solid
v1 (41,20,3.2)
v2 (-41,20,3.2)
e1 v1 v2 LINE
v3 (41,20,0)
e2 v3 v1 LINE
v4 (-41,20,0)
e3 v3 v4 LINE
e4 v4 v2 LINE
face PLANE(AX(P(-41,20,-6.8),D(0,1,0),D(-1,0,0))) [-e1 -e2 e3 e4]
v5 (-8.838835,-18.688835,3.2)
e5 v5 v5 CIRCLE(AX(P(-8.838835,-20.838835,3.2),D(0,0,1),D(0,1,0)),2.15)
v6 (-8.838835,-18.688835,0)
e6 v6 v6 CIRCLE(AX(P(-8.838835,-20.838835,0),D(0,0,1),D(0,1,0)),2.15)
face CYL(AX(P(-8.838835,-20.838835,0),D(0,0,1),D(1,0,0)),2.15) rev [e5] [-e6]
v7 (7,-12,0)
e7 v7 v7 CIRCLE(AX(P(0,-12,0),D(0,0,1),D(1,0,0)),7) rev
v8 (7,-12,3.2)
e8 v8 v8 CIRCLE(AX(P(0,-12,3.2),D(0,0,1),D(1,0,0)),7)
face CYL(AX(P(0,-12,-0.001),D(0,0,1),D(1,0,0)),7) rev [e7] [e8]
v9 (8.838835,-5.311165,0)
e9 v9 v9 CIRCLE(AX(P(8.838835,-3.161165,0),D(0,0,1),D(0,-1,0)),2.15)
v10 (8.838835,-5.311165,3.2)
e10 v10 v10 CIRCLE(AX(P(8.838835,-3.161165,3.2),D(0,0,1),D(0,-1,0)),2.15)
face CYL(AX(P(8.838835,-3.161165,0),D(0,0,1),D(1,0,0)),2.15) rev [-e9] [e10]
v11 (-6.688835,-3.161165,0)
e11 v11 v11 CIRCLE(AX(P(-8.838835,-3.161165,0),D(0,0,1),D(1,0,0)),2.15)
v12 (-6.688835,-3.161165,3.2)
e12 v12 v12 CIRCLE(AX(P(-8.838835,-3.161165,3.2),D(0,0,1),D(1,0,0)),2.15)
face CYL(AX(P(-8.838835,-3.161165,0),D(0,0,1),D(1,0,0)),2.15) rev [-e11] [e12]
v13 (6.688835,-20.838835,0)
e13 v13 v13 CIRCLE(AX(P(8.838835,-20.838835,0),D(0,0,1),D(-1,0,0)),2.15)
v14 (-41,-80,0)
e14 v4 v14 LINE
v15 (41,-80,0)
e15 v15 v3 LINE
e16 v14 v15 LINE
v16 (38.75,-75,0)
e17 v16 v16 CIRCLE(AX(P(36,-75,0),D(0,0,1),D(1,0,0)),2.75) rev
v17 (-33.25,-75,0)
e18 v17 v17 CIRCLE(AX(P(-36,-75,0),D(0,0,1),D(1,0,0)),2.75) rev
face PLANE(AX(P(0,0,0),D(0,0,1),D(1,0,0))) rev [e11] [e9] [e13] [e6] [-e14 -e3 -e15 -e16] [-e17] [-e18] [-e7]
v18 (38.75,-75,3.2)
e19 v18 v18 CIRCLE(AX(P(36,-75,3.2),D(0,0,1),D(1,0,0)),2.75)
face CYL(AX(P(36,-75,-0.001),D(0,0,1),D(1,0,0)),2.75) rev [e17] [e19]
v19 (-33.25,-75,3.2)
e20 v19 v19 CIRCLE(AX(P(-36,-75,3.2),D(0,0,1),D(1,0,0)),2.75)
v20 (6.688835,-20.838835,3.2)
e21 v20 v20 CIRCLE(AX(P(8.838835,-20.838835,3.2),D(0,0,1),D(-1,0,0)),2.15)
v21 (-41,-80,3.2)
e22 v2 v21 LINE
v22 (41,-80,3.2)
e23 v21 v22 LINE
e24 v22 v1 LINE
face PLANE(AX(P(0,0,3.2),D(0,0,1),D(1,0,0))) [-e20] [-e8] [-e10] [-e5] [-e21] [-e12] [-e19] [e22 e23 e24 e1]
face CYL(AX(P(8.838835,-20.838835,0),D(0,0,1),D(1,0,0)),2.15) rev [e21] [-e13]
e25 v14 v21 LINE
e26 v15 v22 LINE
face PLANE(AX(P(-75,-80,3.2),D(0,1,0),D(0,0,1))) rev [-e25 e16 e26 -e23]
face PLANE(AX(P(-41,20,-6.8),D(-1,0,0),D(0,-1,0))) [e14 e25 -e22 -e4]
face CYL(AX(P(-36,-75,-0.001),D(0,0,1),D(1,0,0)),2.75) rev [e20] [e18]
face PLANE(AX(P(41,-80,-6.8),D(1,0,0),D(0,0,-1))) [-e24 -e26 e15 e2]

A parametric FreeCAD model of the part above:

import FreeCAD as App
import Part
import Sketcher
from FreeCAD import Vector

doc = App.newDocument("Part")
body = doc.addObject("PartDesign::Body", "Body")

# Sketch on XY plane
sketch1 = body.newObject("Sketcher::SketchObject", "Sketch")
sketch1.AttachmentSupport = (doc.getObject("XY_Plane"), [""])
sketch1.MapMode = "FlatFace"
sketch1.addGeometry([
    Part.LineSegment(Vector(-75, 80, 0), Vector(-75, -80, 0)),
    Part.LineSegment(Vector(-75, -80, 0), Vector(75, -80, 0)),
    Part.LineSegment(Vector(75, -80, 0), Vector(75, 80, 0)),
    Part.LineSegment(Vector(75, 80, 0), Vector(-75, 80, 0)),
], False)
sketch1.addConstraint([
    Sketcher.Constraint("Coincident", 0, 2, 1, 1),
    Sketcher.Constraint("Coincident", 1, 2, 2, 1),
    Sketcher.Constraint("Coincident", 2, 2, 3, 1),
    Sketcher.Constraint("Coincident", 3, 2, 0, 1),
    Sketcher.Constraint("Vertical", 0),
    Sketcher.Constraint("Horizontal", 1),
    Sketcher.Constraint("Vertical", 2),
    Sketcher.Constraint("Horizontal", 3),
    Sketcher.Constraint("Symmetric", 0, 2, 2, 2, -1, 1),
    Sketcher.Constraint("DistanceX", 1, 1, 1, 2, 150.0),
    Sketcher.Constraint("DistanceY", 0, 2, 0, 1, 160.0),
])
pad1 = body.newObject("PartDesign::Pad", "Pad")
pad1.Profile = sketch1
pad1.Length = 3.2

# Sketch on XY plane
sketch2 = body.newObject("Sketcher::SketchObject", "Sketch001")
sketch2.AttachmentSupport = (doc.getObject("XY_Plane"), [""])
sketch2.MapMode = "FlatFace"
sketch2.AttachmentOffset = App.Placement(Vector(0, 0, 3.2), App.Rotation())
sketch2.addGeometry(Part.Circle(Vector(0, -12, 0), Vector(0, 0, 1), 7), False)
sketch2.addConstraint([
    Sketcher.Constraint("PointOnObject", 0, 3, -2),
    Sketcher.Constraint("Diameter", 0, 14.0),
    Sketcher.Constraint("DistanceY", 0, 3, -1, 1, 12.0),
])
pocket1 = body.newObject("PartDesign::Pocket", "Pocket")
pocket1.Profile = sketch2
pocket1.Type = "UpToFirst"

# Sketch on XY plane
sketch3 = body.newObject("Sketcher::SketchObject", "Sketch002")
sketch3.AttachmentSupport = (doc.getObject("XY_Plane"), [""])
sketch3.MapMode = "FlatFace"
sketch3.AttachmentOffset = App.Placement(Vector(0, 0, 3.2), App.Rotation())
sketch3.addGeometry(Part.Circle(Vector(-36, -75, 0), Vector(0, 0, 1), 2.8), False)
sketch3.addConstraint([
    Sketcher.Constraint("Diameter", 0, 5.5),
    Sketcher.Constraint("DistanceX", 0, 3, -1, 1, 36.0),
    Sketcher.Constraint("DistanceY", 0, 3, -1, 1, 75.0),
])
pocket2 = body.newObject("PartDesign::Pocket", "Pocket001")
pocket2.Profile = sketch3
pocket2.Type = "UpToFirst"

# Sketch on XY plane
sketch4 = body.newObject("Sketcher::SketchObject", "Sketch003")
sketch4.AttachmentSupport = (doc.getObject("XY_Plane"), [""])
sketch4.MapMode = "FlatFace"
sketch4.AttachmentOffset = App.Placement(Vector(0, 0, 3.2), App.Rotation())
sketch4.addGeometry(Part.Circle(Vector(36, -75, 0), Vector(0, 0, 1), 2.8), False)
sketch4.addConstraint([
    Sketcher.Constraint("Diameter", 0, 5.5),
    Sketcher.Constraint("DistanceX", -1, 1, 0, 3, 36.0),
    Sketcher.Constraint("DistanceY", 0, 3, -1, 1, 75.0),
])
pocket3 = body.newObject("PartDesign::Pocket", "Pocket002")
pocket3.Profile = sketch4
pocket3.Type = "UpToFirst"

# Sketch on XY plane
sketch5 = body.newObject("Sketcher::SketchObject", "Sketch004")
sketch5.AttachmentSupport = (doc.getObject("XY_Plane"), [""])
sketch5.MapMode = "FlatFace"
sketch5.AttachmentOffset = App.Placement(Vector(0, 0, 3.2), App.Rotation())
sketch5.addGeometry(Part.Circle(Vector(-8.8, -3.2, 0), Vector(0, 0, 1), 2.1), False)
sketch5.addConstraint([
    Sketcher.Constraint("Diameter", 0, 4.3),
    Sketcher.Constraint("DistanceX", 0, 3, -1, 1, 8.838835),
    Sketcher.Constraint("DistanceY", 0, 3, -1, 1, 3.161165),
])
pocket4 = body.newObject("PartDesign::Pocket", "Pocket003")
pocket4.Profile = sketch5
pocket4.Type = "ThroughAll"
doc.recompute()

datumline = body.newObject("PartDesign::Line", "DatumLine")
datumline.Placement = App.Placement(Vector(0, -12, 0), App.Rotation(Vector(0, 0, 1), Vector(0, 0, 1)))
polarpattern = body.newObject("PartDesign::PolarPattern", "PolarPattern")
polarpattern.Originals = [pocket4]
polarpattern.Axis = (datumline, [""])
polarpattern.Angle = 360
polarpattern.Occurrences = 4
body.Tip = polarpattern

# Sketch on XY plane
sketch6 = body.newObject("Sketcher::SketchObject", "Sketch005")
sketch6.AttachmentSupport = (doc.getObject("XY_Plane"), [""])
sketch6.MapMode = "FlatFace"
sketch6.AttachmentOffset = App.Placement(Vector(0, 0, 3.2), App.Rotation())
sketch6.addGeometry([
    Part.LineSegment(Vector(-98, 103, 0), Vector(-98, -103, 0)),  # 0
    Part.LineSegment(Vector(-98, -103, 0), Vector(98, -103, 0)),  # 1
    Part.LineSegment(Vector(98, -103, 0), Vector(98, 103, 0)),  # 2
    Part.LineSegment(Vector(98, 103, 0), Vector(-98, 103, 0)),  # 3
    Part.LineSegment(Vector(41, -80, 0), Vector(-41, -80, 0)),  # 4
    Part.LineSegment(Vector(-41, -80, 0), Vector(-41, 20, 0)),  # 5
    Part.LineSegment(Vector(-41, 20, 0), Vector(41, 20, 0)),  # 6
    Part.LineSegment(Vector(41, 20, 0), Vector(41, -80, 0)),  # 7
], False)
sketch6.addConstraint([
    Sketcher.Constraint("Coincident", 0, 2, 1, 1),
    Sketcher.Constraint("Coincident", 1, 2, 2, 1),
    Sketcher.Constraint("Coincident", 2, 2, 3, 1),
    Sketcher.Constraint("Coincident", 3, 2, 0, 1),
    Sketcher.Constraint("Coincident", 4, 2, 5, 1),
    Sketcher.Constraint("Coincident", 5, 2, 6, 1),
    Sketcher.Constraint("Coincident", 6, 2, 7, 1),
    Sketcher.Constraint("Coincident", 7, 2, 4, 1),
    Sketcher.Constraint("Vertical", 0),
    Sketcher.Constraint("Horizontal", 1),
    Sketcher.Constraint("Vertical", 2),
    Sketcher.Constraint("Horizontal", 3),
    Sketcher.Constraint("Horizontal", 4),
    Sketcher.Constraint("Vertical", 5),
    Sketcher.Constraint("Horizontal", 6),
    Sketcher.Constraint("Vertical", 7),
    Sketcher.Constraint("Symmetric", 0, 2, 2, 2, -1, 1),
    Sketcher.Constraint("DistanceX", 4, 2, 4, 1, 82.0),
    Sketcher.Constraint("DistanceY", 5, 1, 5, 2, 100.0),
    Sketcher.Constraint("DistanceX", 4, 2, -1, 1, 41.0),
    Sketcher.Constraint("DistanceY", 4, 2, -1, 1, 80.0),
    Sketcher.Constraint("DistanceX", 1, 1, 1, 2, 195.868),
    Sketcher.Constraint("DistanceY", 0, 2, 0, 1, 205.868),
])
pocket5 = body.newObject("PartDesign::Pocket", "Pocket004")
pocket5.Profile = sketch6
pocket5.Length = 10

doc.recompute()
